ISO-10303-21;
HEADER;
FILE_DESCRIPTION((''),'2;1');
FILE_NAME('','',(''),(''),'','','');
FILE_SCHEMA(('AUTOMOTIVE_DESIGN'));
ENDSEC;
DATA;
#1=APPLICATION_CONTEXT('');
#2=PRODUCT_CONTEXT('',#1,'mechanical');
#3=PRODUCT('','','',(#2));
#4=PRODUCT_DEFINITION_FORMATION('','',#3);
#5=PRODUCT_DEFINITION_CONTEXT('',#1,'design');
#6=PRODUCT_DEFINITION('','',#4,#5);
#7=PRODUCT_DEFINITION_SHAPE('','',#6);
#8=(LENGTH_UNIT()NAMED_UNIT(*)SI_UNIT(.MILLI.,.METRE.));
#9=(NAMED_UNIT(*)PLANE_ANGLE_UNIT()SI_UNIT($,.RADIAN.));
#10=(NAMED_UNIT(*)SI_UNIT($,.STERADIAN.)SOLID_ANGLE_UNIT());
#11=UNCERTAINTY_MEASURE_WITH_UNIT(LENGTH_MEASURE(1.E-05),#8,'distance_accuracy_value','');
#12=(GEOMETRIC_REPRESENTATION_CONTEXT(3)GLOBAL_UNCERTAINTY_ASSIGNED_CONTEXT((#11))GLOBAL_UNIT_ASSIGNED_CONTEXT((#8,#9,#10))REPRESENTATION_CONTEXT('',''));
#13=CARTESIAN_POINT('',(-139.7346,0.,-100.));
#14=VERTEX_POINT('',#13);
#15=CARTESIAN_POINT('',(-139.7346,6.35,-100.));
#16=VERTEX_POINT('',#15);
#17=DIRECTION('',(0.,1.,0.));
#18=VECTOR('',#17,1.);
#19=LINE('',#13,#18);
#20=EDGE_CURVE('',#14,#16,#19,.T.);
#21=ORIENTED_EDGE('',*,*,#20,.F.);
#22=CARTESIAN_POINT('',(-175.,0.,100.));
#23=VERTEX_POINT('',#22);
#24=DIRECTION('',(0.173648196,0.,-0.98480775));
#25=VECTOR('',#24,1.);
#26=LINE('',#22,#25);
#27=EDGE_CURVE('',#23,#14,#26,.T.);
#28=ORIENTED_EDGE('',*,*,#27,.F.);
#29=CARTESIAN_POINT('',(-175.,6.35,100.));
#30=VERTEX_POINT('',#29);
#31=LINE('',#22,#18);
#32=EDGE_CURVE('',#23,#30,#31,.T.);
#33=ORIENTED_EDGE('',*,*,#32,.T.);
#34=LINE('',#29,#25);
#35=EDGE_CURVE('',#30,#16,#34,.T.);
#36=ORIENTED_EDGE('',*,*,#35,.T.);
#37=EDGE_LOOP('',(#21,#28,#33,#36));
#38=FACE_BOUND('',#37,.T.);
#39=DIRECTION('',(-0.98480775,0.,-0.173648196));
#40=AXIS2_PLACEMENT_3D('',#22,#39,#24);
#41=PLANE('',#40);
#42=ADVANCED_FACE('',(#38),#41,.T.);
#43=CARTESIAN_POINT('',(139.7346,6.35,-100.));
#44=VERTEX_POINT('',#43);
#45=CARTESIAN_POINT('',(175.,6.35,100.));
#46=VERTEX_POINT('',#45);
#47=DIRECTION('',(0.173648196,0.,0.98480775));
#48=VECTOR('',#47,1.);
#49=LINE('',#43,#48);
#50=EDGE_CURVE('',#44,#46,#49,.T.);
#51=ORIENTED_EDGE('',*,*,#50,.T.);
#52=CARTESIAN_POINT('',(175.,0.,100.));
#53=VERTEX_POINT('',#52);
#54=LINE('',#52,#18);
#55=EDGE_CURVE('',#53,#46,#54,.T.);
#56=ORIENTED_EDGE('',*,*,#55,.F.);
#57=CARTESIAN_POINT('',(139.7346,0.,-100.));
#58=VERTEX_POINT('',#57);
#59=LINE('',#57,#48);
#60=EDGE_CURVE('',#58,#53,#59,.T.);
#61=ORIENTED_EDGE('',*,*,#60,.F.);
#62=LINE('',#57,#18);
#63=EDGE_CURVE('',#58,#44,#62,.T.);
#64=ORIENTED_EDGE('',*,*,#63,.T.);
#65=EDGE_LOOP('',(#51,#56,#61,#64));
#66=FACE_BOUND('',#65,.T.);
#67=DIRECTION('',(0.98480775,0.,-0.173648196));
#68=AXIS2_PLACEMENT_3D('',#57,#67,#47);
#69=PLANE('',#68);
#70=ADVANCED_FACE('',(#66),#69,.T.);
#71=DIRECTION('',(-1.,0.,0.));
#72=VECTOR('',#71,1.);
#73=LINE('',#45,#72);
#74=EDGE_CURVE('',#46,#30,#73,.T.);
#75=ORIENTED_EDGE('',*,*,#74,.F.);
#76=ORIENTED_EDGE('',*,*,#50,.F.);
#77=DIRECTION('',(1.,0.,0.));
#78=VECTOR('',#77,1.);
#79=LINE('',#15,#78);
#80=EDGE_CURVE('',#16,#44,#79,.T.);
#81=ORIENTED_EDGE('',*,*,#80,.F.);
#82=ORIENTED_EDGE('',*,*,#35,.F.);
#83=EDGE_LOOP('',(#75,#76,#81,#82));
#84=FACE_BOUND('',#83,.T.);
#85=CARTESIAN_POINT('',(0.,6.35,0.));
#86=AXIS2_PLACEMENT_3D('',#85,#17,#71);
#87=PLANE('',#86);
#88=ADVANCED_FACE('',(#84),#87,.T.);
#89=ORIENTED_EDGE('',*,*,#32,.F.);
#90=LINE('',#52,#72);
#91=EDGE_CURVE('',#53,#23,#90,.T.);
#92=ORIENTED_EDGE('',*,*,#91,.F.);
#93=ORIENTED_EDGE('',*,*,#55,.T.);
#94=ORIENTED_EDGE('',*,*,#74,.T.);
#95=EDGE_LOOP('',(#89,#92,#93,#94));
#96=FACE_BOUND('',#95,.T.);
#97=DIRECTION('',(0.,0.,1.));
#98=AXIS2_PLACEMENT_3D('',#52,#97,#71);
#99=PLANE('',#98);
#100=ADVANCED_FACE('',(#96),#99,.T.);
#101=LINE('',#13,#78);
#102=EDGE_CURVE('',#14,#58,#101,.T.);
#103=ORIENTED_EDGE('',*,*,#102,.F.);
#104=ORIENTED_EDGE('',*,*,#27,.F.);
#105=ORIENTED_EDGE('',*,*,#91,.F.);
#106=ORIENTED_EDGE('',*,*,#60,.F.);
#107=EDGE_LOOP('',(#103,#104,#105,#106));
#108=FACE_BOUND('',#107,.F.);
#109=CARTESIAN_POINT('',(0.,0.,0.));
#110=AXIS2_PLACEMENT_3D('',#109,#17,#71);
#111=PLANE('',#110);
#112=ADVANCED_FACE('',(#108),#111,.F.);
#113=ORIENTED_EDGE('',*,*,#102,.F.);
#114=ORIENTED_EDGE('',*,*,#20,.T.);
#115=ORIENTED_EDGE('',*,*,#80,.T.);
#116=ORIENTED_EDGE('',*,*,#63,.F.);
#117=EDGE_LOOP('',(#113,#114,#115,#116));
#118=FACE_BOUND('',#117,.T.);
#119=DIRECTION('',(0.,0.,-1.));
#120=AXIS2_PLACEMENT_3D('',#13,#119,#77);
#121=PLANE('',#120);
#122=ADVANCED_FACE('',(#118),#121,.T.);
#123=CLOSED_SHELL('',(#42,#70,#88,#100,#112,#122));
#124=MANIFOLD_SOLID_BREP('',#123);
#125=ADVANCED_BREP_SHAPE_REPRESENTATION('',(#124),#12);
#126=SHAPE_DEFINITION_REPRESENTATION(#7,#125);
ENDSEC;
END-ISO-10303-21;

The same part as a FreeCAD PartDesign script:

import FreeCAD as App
import Part
import Sketcher
Q = App.Units.Quantity


def add_polygon(sketch, points):
    """Adds a closed chain of lines whose ends are joined by coincident constraints."""
    first, n = sketch.GeometryCount, len(points)
    for a, b in zip(points, points[1:] + points[:1]):
        sketch.addGeometry(Part.LineSegment(App.Vector(*a, 0), App.Vector(*b, 0)), False)
    for i in range(n):
        sketch.addConstraint(Sketcher.Constraint("Coincident", first + i, 2, first + (i + 1) % n, 1))

doc = App.newDocument("Part")
body = doc.addObject("PartDesign::Body", "Body")

# Sketch on XZ plane
sketch1 = doc.addObject("Sketcher::SketchObject", "Sketch")
body.addObject(sketch1)
sketch1.AttachmentSupport = (doc.XZ_Plane, [""])
sketch1.MapMode = "FlatFace"
add_polygon(sketch1, [(140, -100), (-140, -100), (-175, 100), (175, 100)])  # lines 0-3
sketch1.addConstraint([
    Sketcher.Constraint("Horizontal", 0),
    Sketcher.Constraint("Horizontal", 2),
    Sketcher.Constraint("Equal", 1, 3),
    Sketcher.Constraint("DistanceX", 2, 1, 2, 2, Q("350 mm")),
    Sketcher.Constraint("DistanceY", 0, 2, 1, 2, Q("200 mm")),
    Sketcher.Constraint("Angle", 1, Q("100 deg")),
    Sketcher.Constraint("DistanceY", 0, 2, -1, 1, Q("100 mm")),
    Sketcher.Constraint("DistanceX", 1, 2, -1, 1, Q("175 mm")),
])
pad1 = doc.addObject("PartDesign::Pad", "Pad")
body.addObject(pad1)
pad1.Profile = sketch1
pad1.Length = 6.35
pad1.Reversed = True

doc.recompute()
